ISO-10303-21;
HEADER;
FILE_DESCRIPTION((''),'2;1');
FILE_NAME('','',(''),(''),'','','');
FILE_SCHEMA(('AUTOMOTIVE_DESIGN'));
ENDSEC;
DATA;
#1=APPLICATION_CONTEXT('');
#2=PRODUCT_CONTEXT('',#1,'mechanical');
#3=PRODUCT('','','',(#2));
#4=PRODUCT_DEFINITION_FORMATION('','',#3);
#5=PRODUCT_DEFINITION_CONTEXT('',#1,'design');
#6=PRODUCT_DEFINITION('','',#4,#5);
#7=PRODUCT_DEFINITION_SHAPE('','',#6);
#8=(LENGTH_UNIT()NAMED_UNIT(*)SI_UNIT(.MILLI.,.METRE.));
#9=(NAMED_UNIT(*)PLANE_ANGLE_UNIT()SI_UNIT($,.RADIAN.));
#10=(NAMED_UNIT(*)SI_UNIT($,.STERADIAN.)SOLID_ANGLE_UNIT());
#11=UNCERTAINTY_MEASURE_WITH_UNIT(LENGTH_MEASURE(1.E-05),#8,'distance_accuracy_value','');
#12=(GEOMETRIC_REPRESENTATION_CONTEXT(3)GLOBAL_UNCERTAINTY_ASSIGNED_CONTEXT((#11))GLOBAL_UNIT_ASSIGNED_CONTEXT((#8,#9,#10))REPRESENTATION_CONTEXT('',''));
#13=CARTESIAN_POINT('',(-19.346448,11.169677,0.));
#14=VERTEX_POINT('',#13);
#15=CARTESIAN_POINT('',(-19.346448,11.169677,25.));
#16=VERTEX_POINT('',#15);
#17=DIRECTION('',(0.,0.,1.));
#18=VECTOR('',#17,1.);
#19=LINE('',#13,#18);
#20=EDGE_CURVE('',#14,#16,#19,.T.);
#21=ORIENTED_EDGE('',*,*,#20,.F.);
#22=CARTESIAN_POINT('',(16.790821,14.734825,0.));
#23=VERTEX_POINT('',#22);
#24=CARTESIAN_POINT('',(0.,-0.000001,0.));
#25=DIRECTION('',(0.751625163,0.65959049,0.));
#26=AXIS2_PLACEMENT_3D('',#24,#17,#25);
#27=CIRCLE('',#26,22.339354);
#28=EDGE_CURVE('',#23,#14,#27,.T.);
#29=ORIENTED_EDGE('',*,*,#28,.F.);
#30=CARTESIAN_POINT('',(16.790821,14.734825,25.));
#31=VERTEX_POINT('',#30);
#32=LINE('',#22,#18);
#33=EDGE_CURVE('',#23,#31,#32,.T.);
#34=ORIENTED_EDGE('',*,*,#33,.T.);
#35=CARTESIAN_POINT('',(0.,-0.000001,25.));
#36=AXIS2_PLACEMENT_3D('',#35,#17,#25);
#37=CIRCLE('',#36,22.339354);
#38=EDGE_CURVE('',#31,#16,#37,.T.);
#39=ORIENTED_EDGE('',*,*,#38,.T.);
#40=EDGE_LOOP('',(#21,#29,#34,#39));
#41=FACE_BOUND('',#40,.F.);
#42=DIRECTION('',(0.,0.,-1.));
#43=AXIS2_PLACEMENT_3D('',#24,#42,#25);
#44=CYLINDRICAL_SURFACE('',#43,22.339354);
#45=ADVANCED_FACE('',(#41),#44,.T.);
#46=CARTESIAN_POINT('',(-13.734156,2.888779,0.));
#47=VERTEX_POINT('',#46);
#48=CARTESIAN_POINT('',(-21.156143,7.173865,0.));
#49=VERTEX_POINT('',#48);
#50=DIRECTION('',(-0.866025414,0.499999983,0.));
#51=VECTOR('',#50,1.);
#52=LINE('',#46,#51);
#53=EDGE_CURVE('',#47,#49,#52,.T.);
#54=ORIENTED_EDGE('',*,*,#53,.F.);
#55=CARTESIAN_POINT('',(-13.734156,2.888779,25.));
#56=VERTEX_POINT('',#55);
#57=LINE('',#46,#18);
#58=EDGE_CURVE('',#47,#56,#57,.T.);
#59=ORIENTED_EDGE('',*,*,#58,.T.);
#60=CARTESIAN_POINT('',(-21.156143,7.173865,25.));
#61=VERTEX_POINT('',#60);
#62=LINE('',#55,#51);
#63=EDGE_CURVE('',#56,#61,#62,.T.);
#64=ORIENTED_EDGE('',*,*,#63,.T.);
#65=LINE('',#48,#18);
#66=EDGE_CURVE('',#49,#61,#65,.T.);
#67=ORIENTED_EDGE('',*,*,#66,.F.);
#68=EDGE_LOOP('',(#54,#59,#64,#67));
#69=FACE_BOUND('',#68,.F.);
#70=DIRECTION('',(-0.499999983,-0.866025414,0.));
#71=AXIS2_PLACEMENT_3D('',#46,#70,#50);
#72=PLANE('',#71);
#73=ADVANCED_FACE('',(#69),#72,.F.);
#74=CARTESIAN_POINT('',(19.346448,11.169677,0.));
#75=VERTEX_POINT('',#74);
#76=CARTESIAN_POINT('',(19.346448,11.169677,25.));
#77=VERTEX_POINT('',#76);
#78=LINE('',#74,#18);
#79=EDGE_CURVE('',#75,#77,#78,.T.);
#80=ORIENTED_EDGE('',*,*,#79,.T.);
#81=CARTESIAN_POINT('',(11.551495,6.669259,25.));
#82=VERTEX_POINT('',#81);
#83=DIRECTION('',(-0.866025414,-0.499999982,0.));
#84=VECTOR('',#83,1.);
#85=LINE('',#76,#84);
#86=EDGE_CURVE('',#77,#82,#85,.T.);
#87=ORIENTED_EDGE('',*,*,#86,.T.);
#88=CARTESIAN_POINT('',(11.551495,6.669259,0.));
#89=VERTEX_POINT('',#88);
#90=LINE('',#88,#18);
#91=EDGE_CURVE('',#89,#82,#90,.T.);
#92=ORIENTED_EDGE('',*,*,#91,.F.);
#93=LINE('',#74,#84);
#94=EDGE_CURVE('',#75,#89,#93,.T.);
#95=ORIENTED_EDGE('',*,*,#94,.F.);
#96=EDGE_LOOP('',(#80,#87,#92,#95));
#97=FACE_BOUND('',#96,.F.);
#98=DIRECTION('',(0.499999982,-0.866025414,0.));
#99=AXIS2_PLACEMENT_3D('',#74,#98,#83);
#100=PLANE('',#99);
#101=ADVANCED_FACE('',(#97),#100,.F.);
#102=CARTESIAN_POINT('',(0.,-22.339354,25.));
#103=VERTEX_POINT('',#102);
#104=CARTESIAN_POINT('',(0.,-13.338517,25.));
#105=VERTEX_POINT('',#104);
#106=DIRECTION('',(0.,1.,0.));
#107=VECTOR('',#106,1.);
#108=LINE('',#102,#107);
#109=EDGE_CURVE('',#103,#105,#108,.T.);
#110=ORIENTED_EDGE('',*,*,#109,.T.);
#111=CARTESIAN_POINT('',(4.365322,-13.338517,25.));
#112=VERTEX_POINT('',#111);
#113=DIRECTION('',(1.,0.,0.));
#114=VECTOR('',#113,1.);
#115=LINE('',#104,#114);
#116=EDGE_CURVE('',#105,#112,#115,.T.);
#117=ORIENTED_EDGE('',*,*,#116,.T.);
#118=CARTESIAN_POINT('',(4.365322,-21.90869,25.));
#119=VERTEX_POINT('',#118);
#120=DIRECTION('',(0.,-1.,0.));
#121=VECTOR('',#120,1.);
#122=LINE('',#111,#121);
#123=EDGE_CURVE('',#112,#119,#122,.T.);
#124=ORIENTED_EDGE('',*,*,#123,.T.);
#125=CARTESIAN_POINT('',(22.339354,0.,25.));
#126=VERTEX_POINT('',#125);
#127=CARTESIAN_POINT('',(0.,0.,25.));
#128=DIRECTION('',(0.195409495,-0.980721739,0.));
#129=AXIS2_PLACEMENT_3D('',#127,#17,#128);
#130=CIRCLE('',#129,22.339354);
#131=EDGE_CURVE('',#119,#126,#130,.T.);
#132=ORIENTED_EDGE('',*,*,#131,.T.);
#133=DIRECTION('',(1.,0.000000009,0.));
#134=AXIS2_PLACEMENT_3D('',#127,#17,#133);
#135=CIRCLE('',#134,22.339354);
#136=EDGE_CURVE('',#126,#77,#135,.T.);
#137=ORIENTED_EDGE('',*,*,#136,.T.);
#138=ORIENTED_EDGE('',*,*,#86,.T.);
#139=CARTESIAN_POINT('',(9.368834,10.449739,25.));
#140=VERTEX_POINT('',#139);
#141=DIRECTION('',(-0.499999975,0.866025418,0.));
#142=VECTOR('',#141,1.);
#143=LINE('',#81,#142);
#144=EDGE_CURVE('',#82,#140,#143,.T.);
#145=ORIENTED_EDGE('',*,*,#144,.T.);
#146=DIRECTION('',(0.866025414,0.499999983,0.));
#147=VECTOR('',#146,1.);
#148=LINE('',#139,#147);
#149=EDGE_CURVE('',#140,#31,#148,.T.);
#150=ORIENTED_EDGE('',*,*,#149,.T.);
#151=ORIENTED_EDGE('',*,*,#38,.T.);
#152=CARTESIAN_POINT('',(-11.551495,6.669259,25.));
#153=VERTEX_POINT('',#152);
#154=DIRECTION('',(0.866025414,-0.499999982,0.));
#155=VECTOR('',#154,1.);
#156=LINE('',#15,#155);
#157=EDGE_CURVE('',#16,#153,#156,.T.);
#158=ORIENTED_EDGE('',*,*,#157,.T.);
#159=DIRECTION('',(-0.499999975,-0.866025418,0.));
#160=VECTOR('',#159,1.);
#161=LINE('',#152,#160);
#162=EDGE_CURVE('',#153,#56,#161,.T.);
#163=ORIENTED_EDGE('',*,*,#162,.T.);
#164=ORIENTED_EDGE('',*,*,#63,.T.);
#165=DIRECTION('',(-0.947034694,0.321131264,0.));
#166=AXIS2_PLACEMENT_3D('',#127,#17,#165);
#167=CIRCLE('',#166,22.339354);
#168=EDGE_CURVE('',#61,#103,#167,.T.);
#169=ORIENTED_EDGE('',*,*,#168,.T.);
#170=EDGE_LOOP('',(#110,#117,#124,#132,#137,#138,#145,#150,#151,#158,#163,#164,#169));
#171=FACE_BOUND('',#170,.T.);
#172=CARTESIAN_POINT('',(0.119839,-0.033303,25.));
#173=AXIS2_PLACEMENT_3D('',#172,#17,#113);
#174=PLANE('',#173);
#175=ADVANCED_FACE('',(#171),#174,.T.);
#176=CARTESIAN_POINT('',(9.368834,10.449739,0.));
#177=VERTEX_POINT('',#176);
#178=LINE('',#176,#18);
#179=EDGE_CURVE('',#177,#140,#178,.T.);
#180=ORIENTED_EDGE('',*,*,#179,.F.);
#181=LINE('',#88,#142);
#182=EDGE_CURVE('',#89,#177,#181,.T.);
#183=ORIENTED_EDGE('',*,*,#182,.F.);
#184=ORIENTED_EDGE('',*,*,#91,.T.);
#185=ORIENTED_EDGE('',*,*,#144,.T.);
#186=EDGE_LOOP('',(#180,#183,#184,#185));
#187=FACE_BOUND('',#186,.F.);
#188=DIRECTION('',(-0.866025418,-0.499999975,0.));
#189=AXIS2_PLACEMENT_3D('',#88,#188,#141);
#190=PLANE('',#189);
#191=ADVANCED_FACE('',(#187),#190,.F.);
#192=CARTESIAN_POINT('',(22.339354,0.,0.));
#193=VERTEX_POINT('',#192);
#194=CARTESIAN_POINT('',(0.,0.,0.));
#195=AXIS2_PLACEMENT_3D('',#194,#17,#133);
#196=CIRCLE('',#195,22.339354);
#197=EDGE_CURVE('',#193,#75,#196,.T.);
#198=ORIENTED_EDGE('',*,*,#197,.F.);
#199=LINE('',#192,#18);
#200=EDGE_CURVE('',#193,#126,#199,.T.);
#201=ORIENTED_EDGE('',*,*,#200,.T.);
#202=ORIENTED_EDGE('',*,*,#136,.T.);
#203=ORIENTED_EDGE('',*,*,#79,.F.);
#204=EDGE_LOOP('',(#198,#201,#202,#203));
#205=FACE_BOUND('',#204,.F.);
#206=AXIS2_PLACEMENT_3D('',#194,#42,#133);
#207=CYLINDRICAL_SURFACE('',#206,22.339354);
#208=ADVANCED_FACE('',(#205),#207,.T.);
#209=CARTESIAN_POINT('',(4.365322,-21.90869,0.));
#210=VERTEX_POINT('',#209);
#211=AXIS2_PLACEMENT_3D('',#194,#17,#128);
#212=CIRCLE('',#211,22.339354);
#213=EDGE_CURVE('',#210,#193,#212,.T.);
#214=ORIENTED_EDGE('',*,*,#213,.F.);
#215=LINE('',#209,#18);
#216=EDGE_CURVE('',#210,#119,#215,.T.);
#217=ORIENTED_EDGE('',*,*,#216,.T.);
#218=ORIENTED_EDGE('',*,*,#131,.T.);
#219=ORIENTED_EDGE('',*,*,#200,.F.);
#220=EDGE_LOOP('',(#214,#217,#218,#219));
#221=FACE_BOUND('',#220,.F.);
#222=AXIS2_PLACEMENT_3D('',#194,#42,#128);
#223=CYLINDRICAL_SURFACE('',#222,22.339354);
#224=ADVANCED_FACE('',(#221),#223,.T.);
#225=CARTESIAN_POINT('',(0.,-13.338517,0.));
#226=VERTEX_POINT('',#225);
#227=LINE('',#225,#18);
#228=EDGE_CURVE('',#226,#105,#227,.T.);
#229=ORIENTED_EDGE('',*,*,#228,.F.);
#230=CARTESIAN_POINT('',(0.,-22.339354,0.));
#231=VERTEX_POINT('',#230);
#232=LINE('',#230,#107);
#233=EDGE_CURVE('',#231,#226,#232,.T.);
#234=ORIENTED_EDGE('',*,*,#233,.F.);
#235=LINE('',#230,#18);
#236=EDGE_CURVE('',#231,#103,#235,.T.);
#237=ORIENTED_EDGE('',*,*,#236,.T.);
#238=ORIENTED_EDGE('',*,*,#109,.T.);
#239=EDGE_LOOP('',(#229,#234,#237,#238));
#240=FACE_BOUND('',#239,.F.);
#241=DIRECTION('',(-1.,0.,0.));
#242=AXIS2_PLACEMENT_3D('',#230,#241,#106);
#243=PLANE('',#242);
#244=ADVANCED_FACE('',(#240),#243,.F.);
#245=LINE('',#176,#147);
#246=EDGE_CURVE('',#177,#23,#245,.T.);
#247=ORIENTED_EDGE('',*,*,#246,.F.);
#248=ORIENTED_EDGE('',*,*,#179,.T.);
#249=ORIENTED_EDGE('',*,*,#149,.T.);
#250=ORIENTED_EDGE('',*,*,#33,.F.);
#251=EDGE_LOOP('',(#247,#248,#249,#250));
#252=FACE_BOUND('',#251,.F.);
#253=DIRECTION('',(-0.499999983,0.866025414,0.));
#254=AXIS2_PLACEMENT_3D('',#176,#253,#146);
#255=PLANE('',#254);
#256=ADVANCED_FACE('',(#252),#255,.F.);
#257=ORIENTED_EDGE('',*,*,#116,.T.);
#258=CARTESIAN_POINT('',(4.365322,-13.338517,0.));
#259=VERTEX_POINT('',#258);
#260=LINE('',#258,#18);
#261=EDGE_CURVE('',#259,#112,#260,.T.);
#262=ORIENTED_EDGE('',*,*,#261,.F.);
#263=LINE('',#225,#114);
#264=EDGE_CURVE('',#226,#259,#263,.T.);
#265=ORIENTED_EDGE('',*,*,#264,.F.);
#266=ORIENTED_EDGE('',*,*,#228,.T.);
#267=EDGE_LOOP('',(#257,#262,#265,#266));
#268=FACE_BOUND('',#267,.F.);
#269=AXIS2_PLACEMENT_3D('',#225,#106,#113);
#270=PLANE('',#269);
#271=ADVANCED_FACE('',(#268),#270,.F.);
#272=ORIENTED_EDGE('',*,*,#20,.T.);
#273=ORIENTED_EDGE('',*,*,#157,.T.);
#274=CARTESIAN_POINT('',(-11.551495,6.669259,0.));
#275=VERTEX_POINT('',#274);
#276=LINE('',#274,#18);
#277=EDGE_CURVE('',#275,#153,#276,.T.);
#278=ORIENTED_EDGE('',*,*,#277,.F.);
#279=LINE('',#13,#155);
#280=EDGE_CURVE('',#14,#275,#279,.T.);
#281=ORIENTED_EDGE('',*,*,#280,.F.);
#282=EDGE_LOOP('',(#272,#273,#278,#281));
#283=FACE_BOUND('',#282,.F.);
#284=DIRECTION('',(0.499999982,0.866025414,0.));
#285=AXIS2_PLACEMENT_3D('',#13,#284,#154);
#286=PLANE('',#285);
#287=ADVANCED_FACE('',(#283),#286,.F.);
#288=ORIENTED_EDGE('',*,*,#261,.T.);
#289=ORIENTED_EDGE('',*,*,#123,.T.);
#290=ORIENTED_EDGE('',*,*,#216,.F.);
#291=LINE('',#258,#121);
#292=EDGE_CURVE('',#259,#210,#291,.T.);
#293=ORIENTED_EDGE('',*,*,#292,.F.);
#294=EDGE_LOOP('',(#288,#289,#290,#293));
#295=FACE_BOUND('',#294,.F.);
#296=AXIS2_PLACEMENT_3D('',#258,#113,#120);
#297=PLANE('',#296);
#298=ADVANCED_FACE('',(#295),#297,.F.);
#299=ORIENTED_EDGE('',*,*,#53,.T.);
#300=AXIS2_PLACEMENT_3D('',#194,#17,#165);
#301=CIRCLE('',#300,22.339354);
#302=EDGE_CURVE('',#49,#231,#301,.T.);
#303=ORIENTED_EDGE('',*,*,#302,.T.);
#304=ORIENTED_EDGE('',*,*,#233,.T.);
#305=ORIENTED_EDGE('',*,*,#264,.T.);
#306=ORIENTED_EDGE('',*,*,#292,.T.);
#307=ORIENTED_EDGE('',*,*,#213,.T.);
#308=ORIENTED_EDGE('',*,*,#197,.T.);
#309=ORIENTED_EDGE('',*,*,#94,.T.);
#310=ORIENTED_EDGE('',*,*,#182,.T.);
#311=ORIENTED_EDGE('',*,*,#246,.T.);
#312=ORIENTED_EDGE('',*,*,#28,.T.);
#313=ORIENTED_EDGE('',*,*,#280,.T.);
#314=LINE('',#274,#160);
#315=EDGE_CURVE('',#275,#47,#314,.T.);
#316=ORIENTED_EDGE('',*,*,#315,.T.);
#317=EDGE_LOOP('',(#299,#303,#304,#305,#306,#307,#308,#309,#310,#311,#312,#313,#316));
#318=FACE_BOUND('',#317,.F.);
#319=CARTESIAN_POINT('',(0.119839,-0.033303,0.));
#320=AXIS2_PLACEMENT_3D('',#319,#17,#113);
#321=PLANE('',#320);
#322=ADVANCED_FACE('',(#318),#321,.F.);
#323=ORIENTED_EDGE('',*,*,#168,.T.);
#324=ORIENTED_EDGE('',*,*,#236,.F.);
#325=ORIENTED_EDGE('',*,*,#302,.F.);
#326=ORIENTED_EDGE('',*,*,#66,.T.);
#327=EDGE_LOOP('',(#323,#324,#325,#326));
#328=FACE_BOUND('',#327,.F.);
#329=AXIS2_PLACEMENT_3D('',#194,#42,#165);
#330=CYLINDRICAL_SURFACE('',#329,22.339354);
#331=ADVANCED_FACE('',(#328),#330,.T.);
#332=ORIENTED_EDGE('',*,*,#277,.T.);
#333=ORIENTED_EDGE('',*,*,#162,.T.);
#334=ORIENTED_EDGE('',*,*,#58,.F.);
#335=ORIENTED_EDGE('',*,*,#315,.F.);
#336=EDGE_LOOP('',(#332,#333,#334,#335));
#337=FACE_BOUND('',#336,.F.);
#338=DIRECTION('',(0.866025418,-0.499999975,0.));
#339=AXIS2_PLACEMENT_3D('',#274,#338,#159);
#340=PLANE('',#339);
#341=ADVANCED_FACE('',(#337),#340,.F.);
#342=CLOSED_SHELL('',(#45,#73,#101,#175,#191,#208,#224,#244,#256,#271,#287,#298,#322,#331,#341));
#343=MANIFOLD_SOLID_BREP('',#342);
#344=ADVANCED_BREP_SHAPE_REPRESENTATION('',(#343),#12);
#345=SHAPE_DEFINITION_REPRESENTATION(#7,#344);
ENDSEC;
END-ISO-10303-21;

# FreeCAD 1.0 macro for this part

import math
import FreeCAD as App
import Part
import Sketcher

V = App.Vector
Q = App.Units.Quantity

doc = App.newDocument("Part")
body = doc.addObject("PartDesign::Body", "Body")

sketch1 = body.newObject("Sketcher::SketchObject", "Sketch")
sketch1.AttachmentSupport = (doc.getObject("XY_Plane"), [""])
sketch1.MapMode = "FlatFace"
sketch1.addGeometry(Part.ArcOfCircle(Part.Circle(V(0, 0, 0), V(0, 0, 1), 22.339354), math.radians(-78.731354), math.radians(0)), False)
sketch1.addGeometry(Part.ArcOfCircle(Part.Circle(V(0, 0, 0), V(0, 0, 1), 22.339354), math.radians(0.000001), math.radians(30)), False)
sketch1.addGeometry(Part.LineSegment(V(19.346448, 11.169677, 0), V(11.551495, 6.669259, 0)), False)
sketch1.addGeometry(Part.LineSegment(V(11.551495, 6.669259, 0), V(9.368834, 10.449739, 0)), False)
sketch1.addGeometry(Part.LineSegment(V(9.368834, 10.449739, 0), V(16.790821, 14.734825, 0)), False)
sketch1.addGeometry(Part.ArcOfCircle(Part.Circle(V(0, -0.000001, 0), V(0, 0, 1), 22.339354), math.radians(41.268649), math.radians(149.999998)), False)
sketch1.addGeometry(Part.LineSegment(V(-19.346448, 11.169677, 0), V(-11.551495, 6.669259, 0)), False)
sketch1.addGeometry(Part.LineSegment(V(-11.551495, 6.669259, 0), V(-13.734156, 2.888779, 0)), False)
sketch1.addGeometry(Part.LineSegment(V(-13.734156, 2.888779, 0), V(-21.156143, 7.173865, 0)), False)
sketch1.addGeometry(Part.ArcOfCircle(Part.Circle(V(0, 0, 0), V(0, 0, 1), 22.339354), math.radians(161.268647), math.radians(269.999999)), False)
sketch1.addGeometry(Part.LineSegment(V(0, -22.339354, 0), V(0, -13.338517, 0)), False)
sketch1.addGeometry(Part.LineSegment(V(0, -13.338517, 0), V(4.365322, -13.338517, 0)), False)
sketch1.addGeometry(Part.LineSegment(V(4.365322, -13.338517, 0), V(4.365322, -21.90869, 0)), False)
sketch1.addConstraint(Sketcher.Constraint("Tangent", 0, 2, 1, 1))
sketch1.addConstraint(Sketcher.Constraint("Coincident", 1, 2, 2, 1))
sketch1.addConstraint(Sketcher.Constraint("Coincident", 2, 2, 3, 1))
sketch1.addConstraint(Sketcher.Constraint("Coincident", 3, 2, 4, 1))
sketch1.addConstraint(Sketcher.Constraint("Coincident", 4, 2, 5, 1))
sketch1.addConstraint(Sketcher.Constraint("Coincident", 5, 2, 6, 1))
sketch1.addConstraint(Sketcher.Constraint("Coincident", 6, 2, 7, 1))
sketch1.addConstraint(Sketcher.Constraint("Coincident", 7, 2, 8, 1))
sketch1.addConstraint(Sketcher.Constraint("Coincident", 8, 2, 9, 1))
sketch1.addConstraint(Sketcher.Constraint("Coincident", 9, 2, 10, 1))
sketch1.addConstraint(Sketcher.Constraint("Coincident", 10, 2, 11, 1))
sketch1.addConstraint(Sketcher.Constraint("Coincident", 11, 2, 12, 1))
sketch1.addConstraint(Sketcher.Constraint("Coincident", 12, 2, 0, 1))
sketch1.addConstraint(Sketcher.Constraint("Vertical", 10))
sketch1.addConstraint(Sketcher.Constraint("Horizontal", 11))
sketch1.addConstraint(Sketcher.Constraint("Vertical", 12))
sketch1.addConstraint(Sketcher.Constraint("Coincident", 0, 3, -1, 1))
sketch1.addConstraint(Sketcher.Constraint("Coincident", 5, 3, -1, 1))
sketch1.addConstraint(Sketcher.Constraint("Coincident", 9, 3, -1, 1))
sketch1.addConstraint(Sketcher.Constraint("Equal", 0, 1))
sketch1.addConstraint(Sketcher.Constraint("Equal", 1, 5))
sketch1.addConstraint(Sketcher.Constraint("Equal", 5, 9))
sketch1.addConstraint(Sketcher.Constraint("Symmetric", 2, 2, 6, 2, -2))
sketch1.addConstraint(Sketcher.Constraint("PointOnObject", 0, 2, -1))
sketch1.addConstraint(Sketcher.Constraint("PointOnObject", 9, 2, -2))
sketch1.addConstraint(Sketcher.Constraint("Perpendicular", 2, 3))
sketch1.addConstraint(Sketcher.Constraint("Perpendicular", 3, 4))
sketch1.addConstraint(Sketcher.Constraint("Perpendicular", 6, 7))
sketch1.addConstraint(Sketcher.Constraint("Perpendicular", 7, 8))
sketch1.addConstraint(Sketcher.Constraint("Horizontal", 1, 2, 5, 2))
sketch1.addConstraint(Sketcher.Constraint("Equal", 3, 7))
sketch1.addConstraint(Sketcher.Constraint("Equal", 4, 8))
sketch1.addConstraint(Sketcher.Constraint("Angle", 2, Q("-150.000001 deg")))
sketch1.addConstraint(Sketcher.Constraint("Radius", 0, Q("22.339354 mm")))
sketch1.addConstraint(Sketcher.Constraint("DistanceY", 7, 2, 5, 2, Q("8.280898 mm")))
sketch1.addConstraint(Sketcher.Constraint("DistanceX", 11, 1, 11, 2, Q("4.365322 mm")))
sketch1.addConstraint(Sketcher.Constraint("DistanceY", 10, 1, 10, 2, Q("9.000837 mm")))
sketch1.addConstraint(Sketcher.Constraint("DistanceY", -1, 1, 2, 2, Q("6.669259 mm")))
pad1 = body.newObject("PartDesign::Pad", "Pad")
pad1.Profile = sketch1
pad1.Length = 25

doc.recompute()
